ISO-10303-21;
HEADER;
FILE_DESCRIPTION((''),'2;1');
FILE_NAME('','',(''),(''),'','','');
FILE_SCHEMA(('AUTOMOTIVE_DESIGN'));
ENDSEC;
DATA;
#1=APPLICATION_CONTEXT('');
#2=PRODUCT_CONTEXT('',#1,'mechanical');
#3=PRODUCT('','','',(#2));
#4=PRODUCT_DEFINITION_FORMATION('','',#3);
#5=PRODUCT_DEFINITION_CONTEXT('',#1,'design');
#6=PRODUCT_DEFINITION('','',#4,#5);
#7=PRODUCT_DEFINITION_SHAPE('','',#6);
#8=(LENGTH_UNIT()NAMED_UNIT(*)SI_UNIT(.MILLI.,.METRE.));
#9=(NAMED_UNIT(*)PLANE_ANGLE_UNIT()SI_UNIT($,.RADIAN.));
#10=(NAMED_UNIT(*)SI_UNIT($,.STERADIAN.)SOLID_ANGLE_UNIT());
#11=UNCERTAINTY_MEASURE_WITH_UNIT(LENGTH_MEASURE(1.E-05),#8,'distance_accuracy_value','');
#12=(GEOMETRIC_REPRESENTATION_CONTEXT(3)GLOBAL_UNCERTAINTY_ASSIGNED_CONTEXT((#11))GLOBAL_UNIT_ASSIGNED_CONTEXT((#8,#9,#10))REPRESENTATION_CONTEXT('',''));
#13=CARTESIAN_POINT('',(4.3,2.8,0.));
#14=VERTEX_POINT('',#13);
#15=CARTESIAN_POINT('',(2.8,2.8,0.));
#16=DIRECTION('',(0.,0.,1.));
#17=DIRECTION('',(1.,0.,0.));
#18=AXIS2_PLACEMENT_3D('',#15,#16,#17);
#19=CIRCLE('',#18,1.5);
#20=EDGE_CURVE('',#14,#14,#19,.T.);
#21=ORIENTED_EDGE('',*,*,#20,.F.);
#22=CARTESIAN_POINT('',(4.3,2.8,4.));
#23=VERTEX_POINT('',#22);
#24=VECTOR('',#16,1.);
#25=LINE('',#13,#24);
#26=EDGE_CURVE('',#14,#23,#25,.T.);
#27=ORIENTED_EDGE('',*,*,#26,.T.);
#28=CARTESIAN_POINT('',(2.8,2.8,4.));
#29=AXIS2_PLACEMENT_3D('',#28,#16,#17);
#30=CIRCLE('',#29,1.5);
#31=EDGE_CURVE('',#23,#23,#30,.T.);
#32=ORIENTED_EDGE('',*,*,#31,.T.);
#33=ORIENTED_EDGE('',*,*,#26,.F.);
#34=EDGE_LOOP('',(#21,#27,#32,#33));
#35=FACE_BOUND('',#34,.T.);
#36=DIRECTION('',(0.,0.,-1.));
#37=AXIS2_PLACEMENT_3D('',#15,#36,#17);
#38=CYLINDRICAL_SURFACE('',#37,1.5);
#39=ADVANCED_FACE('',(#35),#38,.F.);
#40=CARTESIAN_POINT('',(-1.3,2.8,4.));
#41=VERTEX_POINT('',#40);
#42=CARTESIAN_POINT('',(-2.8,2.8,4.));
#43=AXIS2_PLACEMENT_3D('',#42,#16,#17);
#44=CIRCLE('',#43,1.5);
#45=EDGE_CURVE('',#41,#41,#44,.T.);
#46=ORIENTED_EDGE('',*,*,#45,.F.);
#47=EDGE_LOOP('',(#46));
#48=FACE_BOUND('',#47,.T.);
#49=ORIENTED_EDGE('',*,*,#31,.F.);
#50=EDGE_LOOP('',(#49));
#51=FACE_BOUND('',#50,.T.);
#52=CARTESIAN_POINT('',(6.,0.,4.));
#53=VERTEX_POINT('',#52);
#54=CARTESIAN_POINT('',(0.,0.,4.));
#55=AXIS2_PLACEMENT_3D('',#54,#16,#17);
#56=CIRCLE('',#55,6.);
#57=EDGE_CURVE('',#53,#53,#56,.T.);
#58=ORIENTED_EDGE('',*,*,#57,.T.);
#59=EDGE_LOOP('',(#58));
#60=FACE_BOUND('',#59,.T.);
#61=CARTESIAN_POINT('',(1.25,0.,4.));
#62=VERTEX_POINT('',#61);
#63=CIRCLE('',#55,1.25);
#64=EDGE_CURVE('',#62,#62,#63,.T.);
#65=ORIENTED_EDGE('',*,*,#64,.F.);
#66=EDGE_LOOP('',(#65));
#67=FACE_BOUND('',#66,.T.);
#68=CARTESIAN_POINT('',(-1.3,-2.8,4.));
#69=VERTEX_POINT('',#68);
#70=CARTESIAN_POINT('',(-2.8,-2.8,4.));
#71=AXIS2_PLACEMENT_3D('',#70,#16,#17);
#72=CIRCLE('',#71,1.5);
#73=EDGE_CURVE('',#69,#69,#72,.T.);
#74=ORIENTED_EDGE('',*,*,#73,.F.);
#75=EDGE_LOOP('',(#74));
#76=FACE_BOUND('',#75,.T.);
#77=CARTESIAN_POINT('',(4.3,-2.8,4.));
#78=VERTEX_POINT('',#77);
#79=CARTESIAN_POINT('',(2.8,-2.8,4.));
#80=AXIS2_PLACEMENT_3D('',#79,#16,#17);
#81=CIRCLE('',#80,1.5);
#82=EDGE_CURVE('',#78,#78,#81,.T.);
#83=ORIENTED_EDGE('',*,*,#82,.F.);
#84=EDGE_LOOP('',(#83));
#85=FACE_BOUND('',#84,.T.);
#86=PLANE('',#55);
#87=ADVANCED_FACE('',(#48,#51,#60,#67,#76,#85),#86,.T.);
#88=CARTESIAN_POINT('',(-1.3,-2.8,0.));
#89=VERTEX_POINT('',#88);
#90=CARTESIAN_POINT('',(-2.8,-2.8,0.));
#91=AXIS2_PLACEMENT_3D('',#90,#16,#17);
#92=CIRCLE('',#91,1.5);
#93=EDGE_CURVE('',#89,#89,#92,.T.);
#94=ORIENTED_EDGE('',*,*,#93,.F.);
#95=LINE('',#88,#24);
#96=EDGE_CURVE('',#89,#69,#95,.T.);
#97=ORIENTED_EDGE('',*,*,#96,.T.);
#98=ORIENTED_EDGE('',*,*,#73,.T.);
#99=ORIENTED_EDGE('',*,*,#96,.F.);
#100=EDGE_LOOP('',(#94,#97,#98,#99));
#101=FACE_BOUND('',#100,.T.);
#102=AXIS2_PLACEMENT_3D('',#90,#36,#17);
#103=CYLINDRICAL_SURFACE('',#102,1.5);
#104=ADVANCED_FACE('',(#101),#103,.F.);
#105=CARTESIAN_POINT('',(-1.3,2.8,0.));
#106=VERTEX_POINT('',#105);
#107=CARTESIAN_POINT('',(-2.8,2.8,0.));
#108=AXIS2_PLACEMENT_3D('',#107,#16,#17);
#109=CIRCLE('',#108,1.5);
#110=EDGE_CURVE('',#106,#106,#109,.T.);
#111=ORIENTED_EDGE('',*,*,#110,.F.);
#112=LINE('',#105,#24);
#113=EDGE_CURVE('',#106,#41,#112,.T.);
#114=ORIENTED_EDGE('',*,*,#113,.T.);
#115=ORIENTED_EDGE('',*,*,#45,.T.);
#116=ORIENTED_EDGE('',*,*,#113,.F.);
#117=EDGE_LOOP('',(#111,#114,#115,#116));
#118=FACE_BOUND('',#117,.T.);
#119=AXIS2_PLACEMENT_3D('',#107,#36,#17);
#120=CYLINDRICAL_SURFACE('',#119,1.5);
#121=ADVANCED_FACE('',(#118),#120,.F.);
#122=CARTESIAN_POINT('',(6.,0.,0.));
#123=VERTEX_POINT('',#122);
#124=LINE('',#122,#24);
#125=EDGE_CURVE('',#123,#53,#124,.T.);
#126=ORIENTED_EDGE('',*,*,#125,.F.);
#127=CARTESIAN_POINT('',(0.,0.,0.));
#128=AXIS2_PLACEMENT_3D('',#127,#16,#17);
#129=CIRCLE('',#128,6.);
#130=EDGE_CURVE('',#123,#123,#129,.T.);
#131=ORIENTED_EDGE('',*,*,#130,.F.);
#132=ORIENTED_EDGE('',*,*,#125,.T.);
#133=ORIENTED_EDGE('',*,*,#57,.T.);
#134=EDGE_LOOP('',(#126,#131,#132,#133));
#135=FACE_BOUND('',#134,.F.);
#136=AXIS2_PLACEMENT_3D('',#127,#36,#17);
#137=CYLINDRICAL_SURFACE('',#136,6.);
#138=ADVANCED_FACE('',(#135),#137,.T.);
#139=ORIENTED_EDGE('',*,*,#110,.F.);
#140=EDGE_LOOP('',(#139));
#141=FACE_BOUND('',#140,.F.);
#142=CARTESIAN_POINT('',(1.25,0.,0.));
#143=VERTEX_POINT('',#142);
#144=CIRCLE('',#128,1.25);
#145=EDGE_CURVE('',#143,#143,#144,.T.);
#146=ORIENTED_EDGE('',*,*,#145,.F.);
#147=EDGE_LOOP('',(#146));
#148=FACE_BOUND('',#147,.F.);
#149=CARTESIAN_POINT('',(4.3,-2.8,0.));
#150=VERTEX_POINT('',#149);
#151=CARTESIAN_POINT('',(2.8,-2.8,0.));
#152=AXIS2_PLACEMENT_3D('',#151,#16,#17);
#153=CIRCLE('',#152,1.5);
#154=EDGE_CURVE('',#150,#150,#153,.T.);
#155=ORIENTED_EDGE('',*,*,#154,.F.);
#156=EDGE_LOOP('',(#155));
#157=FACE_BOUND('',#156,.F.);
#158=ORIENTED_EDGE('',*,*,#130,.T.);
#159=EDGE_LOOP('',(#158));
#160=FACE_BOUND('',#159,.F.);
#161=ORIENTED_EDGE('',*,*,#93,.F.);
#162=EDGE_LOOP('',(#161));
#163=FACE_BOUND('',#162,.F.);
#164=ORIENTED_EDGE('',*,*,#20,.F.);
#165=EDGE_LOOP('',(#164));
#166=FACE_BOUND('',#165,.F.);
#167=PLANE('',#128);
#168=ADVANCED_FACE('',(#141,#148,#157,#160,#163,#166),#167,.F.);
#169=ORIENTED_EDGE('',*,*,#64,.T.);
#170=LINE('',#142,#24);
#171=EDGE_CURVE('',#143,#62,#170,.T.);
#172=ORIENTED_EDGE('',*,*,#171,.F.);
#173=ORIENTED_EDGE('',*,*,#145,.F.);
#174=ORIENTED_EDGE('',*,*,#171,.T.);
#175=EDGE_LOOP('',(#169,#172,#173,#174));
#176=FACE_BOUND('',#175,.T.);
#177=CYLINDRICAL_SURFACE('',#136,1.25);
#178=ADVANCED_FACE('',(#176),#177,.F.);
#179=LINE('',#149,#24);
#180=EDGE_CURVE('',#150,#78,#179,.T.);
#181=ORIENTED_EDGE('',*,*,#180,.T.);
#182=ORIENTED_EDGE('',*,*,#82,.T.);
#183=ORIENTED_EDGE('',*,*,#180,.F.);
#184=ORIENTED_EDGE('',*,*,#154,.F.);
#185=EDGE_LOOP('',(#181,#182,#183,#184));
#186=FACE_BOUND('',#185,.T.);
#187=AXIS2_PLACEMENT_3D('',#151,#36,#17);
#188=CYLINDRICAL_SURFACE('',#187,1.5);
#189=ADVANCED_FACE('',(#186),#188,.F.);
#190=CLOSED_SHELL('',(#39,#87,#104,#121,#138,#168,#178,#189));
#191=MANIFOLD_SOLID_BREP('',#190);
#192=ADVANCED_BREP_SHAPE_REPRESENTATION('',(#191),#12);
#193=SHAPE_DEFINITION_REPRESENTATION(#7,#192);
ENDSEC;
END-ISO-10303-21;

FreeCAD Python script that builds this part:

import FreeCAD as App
import Part
import Sketcher
from FreeCAD import Vector
Q = App.Units.Quantity

doc = App.newDocument("Part")
body = doc.addObject("PartDesign::Body", "Body")

# Sketch on XY plane
sketch1 = doc.addObject("Sketcher::SketchObject", "Sketch")
body.addObject(sketch1)
sketch1.AttachmentSupport = (doc.XY_Plane, [""])
sketch1.MapMode = "FlatFace"
sketch1.addGeometry([
    Part.Circle(Vector(0, 0, 0), Vector(0, 0, 1), 6),  # 0
    Part.Circle(Vector(-2.8, -2.8, 0), Vector(0, 0, 1), 1.5),  # 1
    Part.Circle(Vector(2.8, -2.8, 0), Vector(0, 0, 1), 1.5),  # 2
    Part.Circle(Vector(-2.8, 2.8, 0), Vector(0, 0, 1), 1.5),  # 3
    Part.Circle(Vector(0, 0, 0), Vector(0, 0, 1), 1.25),  # 4
    Part.Circle(Vector(2.8, 2.8, 0), Vector(0, 0, 1), 1.5),  # 5
], False)
sketch1.addConstraint([
    Sketcher.Constraint("Coincident", 0, 3, -1, 1),
    Sketcher.Constraint("Coincident", 4, 3, -1, 1),
    Sketcher.Constraint("Equal", 1, 2),
    Sketcher.Constraint("Equal", 2, 3),
    Sketcher.Constraint("Equal", 3, 5),
    Sketcher.Constraint("Symmetric", 2, 3, 3, 3, -1, 1),
    Sketcher.Constraint("Symmetric", 1, 3, 5, 3, -1, 1),
    Sketcher.Constraint("Symmetric", 1, 3, 2, 3, -2),
    Sketcher.Constraint("Diameter", 0, Q("12 mm")),
    Sketcher.Constraint("Diameter", 1, Q("3 mm")),
    Sketcher.Constraint("Diameter", 4, Q("2.5 mm")),
    Sketcher.Constraint("DistanceX", 1, 3, 2, 3, Q("5.6 mm")),
    Sketcher.Constraint("DistanceY", 1, 3, 3, 3, Q("5.6 mm")),
])
pad1 = doc.addObject("PartDesign::Pad", "Pad")
body.addObject(pad1)
pad1.Profile = sketch1
pad1.Length = 4

doc.recompute()
